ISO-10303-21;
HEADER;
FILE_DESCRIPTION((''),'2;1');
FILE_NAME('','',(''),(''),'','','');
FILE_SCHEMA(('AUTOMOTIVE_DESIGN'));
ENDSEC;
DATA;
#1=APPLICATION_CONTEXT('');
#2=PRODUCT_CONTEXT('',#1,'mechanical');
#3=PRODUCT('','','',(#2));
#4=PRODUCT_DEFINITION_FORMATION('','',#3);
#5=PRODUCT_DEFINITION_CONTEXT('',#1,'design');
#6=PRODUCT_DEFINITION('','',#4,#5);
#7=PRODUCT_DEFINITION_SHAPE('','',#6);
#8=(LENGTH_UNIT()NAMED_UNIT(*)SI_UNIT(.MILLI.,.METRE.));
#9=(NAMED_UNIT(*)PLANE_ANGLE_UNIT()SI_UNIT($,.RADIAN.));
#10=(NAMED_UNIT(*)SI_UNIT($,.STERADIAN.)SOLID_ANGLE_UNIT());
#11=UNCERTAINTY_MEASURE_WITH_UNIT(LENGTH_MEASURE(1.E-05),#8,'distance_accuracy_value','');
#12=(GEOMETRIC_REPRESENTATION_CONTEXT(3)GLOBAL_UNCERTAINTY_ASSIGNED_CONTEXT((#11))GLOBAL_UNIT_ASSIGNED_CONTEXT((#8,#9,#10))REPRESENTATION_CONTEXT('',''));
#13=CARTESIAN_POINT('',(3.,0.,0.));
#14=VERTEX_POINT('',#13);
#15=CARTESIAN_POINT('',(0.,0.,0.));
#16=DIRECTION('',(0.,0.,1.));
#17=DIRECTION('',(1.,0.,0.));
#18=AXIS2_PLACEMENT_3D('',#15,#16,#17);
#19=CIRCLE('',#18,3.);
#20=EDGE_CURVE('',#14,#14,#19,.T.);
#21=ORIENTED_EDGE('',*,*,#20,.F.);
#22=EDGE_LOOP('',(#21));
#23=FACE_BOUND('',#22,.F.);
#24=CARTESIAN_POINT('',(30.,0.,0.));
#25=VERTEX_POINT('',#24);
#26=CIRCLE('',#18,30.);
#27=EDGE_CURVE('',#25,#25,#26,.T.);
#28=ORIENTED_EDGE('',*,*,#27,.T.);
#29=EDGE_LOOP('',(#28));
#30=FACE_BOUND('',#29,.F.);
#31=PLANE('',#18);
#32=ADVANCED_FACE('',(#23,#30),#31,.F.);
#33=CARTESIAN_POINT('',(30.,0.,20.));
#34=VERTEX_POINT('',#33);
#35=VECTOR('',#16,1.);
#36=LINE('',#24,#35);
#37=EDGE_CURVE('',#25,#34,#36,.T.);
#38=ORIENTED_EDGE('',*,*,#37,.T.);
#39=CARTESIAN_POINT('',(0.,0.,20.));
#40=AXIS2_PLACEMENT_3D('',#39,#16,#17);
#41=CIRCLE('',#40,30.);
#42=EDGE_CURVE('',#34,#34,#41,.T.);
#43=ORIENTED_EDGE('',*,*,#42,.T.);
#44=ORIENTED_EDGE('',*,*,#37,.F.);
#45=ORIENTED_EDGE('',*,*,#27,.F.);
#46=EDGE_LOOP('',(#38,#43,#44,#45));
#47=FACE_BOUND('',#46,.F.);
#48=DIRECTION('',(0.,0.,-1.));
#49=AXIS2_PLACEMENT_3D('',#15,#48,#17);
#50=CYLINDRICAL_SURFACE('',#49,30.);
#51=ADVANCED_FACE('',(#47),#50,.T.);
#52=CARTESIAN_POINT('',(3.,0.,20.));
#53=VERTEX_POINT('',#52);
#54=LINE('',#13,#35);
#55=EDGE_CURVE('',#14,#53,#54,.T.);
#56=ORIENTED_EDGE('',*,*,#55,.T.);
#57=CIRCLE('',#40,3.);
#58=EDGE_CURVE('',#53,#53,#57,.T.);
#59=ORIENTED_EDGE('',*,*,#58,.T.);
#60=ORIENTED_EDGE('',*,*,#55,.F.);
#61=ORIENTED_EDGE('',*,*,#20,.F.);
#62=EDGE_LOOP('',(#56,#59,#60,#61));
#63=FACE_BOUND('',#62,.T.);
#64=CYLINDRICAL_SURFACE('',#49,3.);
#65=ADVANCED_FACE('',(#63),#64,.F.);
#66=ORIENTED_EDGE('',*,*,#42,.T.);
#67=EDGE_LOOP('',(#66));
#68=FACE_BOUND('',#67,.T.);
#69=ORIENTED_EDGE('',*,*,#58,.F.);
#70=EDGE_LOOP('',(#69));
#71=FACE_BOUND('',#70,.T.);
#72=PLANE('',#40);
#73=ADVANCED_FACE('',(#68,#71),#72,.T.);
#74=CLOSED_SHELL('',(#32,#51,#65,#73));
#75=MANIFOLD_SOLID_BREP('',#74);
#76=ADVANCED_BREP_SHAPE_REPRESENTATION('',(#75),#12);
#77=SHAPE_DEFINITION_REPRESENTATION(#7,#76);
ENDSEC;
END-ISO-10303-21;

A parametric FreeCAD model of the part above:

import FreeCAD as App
import Part
import Sketcher
from FreeCAD import Vector
Q = App.Units.Quantity

doc = App.newDocument("Part")
body = doc.addObject("PartDesign::Body", "Body")

sketch1 = body.newObject("Sketcher::SketchObject", "Sketch")
sketch1.AttachmentSupport = (doc.getObject("XY_Plane"), [""])
sketch1.MapMode = "FlatFace"
sketch1.addGeometry([
    Part.Circle(Vector(0, 0, 0), Vector(0, 0, 1), 30),
    Part.Circle(Vector(0, 0, 0), Vector(0, 0, 1), 3),
], False)
sketch1.addConstraint([
    Sketcher.Constraint("Coincident", 0, 3, -1, 1),
    Sketcher.Constraint("Coincident", 1, 3, -1, 1),
    Sketcher.Constraint("Diameter", 0, Q("60 mm")),
    Sketcher.Constraint("Diameter", 1, Q("6 mm")),
])
pad1 = body.newObject("PartDesign::Pad", "Pad")
pad1.Profile = sketch1
pad1.Length = 20

doc.recompute()
